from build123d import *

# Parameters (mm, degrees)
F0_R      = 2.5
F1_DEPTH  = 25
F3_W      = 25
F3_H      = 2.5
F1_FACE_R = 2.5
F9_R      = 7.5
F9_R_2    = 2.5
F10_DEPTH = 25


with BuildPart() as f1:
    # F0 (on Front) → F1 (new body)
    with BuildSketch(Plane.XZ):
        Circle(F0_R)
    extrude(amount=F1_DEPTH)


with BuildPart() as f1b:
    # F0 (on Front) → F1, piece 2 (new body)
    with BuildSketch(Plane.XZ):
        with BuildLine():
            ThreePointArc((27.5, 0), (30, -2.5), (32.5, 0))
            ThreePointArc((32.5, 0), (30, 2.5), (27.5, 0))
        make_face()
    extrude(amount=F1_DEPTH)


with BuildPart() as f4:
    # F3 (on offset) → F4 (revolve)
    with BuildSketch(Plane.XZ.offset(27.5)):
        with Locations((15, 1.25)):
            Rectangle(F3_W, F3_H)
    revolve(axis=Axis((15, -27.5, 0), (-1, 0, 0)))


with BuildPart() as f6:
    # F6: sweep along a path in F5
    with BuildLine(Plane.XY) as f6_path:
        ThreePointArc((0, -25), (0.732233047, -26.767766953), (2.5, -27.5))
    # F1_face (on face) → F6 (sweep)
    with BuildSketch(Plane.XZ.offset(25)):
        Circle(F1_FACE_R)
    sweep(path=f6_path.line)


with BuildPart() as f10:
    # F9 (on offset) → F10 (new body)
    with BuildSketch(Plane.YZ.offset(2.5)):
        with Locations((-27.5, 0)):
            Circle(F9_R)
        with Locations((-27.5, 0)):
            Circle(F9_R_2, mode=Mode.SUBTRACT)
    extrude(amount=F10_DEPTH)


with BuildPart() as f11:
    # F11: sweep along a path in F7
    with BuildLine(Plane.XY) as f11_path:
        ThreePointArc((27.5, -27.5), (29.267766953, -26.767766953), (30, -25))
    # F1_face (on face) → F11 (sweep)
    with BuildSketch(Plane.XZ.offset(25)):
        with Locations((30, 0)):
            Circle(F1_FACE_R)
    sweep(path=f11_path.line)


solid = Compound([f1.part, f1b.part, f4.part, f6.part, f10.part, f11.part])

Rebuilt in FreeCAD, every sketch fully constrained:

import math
import FreeCAD as App
import Part
import Sketcher

V = App.Vector


def add_polygon(sketch, points):
    """Adds a closed chain of lines whose ends are joined by coincident constraints."""
    first, n = sketch.GeometryCount, len(points)
    for a, b in zip(points, points[1:] + points[:1]):
        sketch.addGeometry(Part.LineSegment(App.Vector(*a, 0), App.Vector(*b, 0)), False)
    for i in range(n):
        sketch.addConstraint(Sketcher.Constraint("Coincident", first + i, 2, first + (i + 1) % n, 1))

doc = App.newDocument("Part")
body = doc.addObject("PartDesign::Body", "Body")

sketch1 = doc.addObject("Sketcher::SketchObject", "Sketch")
body.addObject(sketch1)
sketch1.AttachmentSupport = (doc.XZ_Plane, [""])
sketch1.MapMode = "FlatFace"
sketch1.addGeometry(Part.Circle(V(0, 0, 0), V(0, 0, 1), 2.5), False)
sketch1.addConstraint(Sketcher.Constraint("Coincident", 0, 3, -1, 1))
sketch1.addConstraint(Sketcher.Constraint("Diameter", 0, 5.0))
pad1 = doc.addObject("PartDesign::Pad", "Pad")
body.addObject(pad1)
pad1.Profile = sketch1
pad1.Length = 25
body2 = doc.addObject("PartDesign::Body", "Body001")

sketch2 = doc.addObject("Sketcher::SketchObject", "Sketch001")
body2.addObject(sketch2)
sketch2.AttachmentSupport = (doc.getObject("XZ_Plane001"), [""])
sketch2.MapMode = "FlatFace"
sketch2.addGeometry(Part.Circle(V(30, 0, 0), V(0, 0, 1), 2.5), False)
sketch2.addConstraint(Sketcher.Constraint("PointOnObject", 0, 3, -1))
sketch2.addConstraint(Sketcher.Constraint("Diameter", 0, 5.0))
sketch2.addConstraint(Sketcher.Constraint("DistanceX", -1, 1, 0, 3, 30.0))
pad2 = doc.addObject("PartDesign::Pad", "Pad001")
body2.addObject(pad2)
pad2.Profile = sketch2
pad2.Length = 25
body3 = doc.addObject("PartDesign::Body", "Body002")

sketch3 = doc.addObject("Sketcher::SketchObject", "Sketch002")
body3.addObject(sketch3)
sketch3.AttachmentSupport = (doc.getObject("XZ_Plane002"), [""])
sketch3.MapMode = "FlatFace"
sketch3.AttachmentOffset = App.Placement(V(0, 0, 27.5), App.Rotation())
add_polygon(sketch3, [(2.5, 2.5), (2.5, 0), (27.5, 0), (27.5, 2.5)])
sketch3.addConstraint(Sketcher.Constraint("Vertical", 0))
sketch3.addConstraint(Sketcher.Constraint("Horizontal", 1))
sketch3.addConstraint(Sketcher.Constraint("Vertical", 2))
sketch3.addConstraint(Sketcher.Constraint("Horizontal", 3))
sketch3.addConstraint(Sketcher.Constraint("PointOnObject", 0, 2, -1))
sketch3.addConstraint(Sketcher.Constraint("DistanceX", 1, 1, 1, 2, 25.0))
sketch3.addConstraint(Sketcher.Constraint("DistanceY", 0, 2, 0, 1, 2.5))
sketch3.addConstraint(Sketcher.Constraint("DistanceX", -1, 1, 0, 2, 2.5))
revolution = doc.addObject("PartDesign::Revolution", "Revolution")
body3.addObject(revolution)
revolution.Profile = sketch3
revolution.ReferenceAxis = (sketch3, ["H_Axis"])
revolution.Angle = 360
body4 = doc.addObject("PartDesign::Body", "Body003")

sketch4 = doc.addObject("Sketcher::SketchObject", "Sketch003")
body4.addObject(sketch4)
sketch4.AttachmentSupport = (doc.getObject("XZ_Plane003"), [""])
sketch4.MapMode = "FlatFace"
sketch4.AttachmentOffset = App.Placement(V(0, 0, 25), App.Rotation())
sketch4.addGeometry(Part.Circle(V(0, 0, 0), V(0, 0, 1), 2.5), False)
sketch4.addConstraint(Sketcher.Constraint("Coincident", 0, 3, -1, 1))
sketch4.addConstraint(Sketcher.Constraint("Diameter", 0, 5.0))

sketch5 = doc.addObject("Sketcher::SketchObject", "Sketch004")
body4.addObject(sketch5)
sketch5.AttachmentSupport = (doc.getObject("XY_Plane003"), [""])
sketch5.MapMode = "FlatFace"
sketch5.addGeometry(Part.ArcOfCircle(Part.Circle(V(2.5, -25, 0), V(0, 0, 1), 2.5), math.radians(180), math.radians(270)), False)
sketch5.addConstraint(Sketcher.Constraint("PointOnObject", 0, 1, -2))
sketch5.addConstraint(Sketcher.Constraint("Radius", 0, 2.5))
sketch5.addConstraint(Sketcher.Constraint("DistanceY", 0, 3, -1, 1, 25.0))
sketch5.addConstraint(Sketcher.Constraint("DistanceY", 0, 1, -1, 1, 25.0))
sketch5.addConstraint(Sketcher.Constraint("DistanceX", -1, 1, 0, 2, 2.5))
doc.recompute()

additivepipe = doc.addObject("PartDesign::AdditivePipe", "AdditivePipe")
body4.addObject(additivepipe)
additivepipe.Profile = sketch4
additivepipe.Spine = (sketch5, ["Edge1"])
body5 = doc.addObject("PartDesign::Body", "Body004")

sketch6 = doc.addObject("Sketcher::SketchObject", "Sketch005")
body5.addObject(sketch6)
sketch6.AttachmentSupport = (doc.getObject("YZ_Plane004"), [""])
sketch6.MapMode = "FlatFace"
sketch6.AttachmentOffset = App.Placement(V(0, 0, 2.5), App.Rotation())
sketch6.addGeometry(Part.Circle(V(-27.5, 0, 0), V(0, 0, 1), 7.5), False)
sketch6.addGeometry(Part.Circle(V(-27.5, 0, 0), V(0, 0, 1), 2.5), False)
sketch6.addConstraint(Sketcher.Constraint("Coincident", 1, 3, 0, 3))
sketch6.addConstraint(Sketcher.Constraint("PointOnObject", 0, 3, -1))
sketch6.addConstraint(Sketcher.Constraint("Diameter", 0, 15.0))
sketch6.addConstraint(Sketcher.Constraint("Diameter", 1, 5.0))
sketch6.addConstraint(Sketcher.Constraint("DistanceX", 0, 3, -1, 1, 27.5))
pad3 = doc.addObject("PartDesign::Pad", "Pad002")
body5.addObject(pad3)
pad3.Profile = sketch6
pad3.Length = 25
body6 = doc.addObject("PartDesign::Body", "Body005")

sketch7 = doc.addObject("Sketcher::SketchObject", "Sketch006")
body6.addObject(sketch7)
sketch7.AttachmentSupport = (doc.getObject("XZ_Plane005"), [""])
sketch7.MapMode = "FlatFace"
sketch7.AttachmentOffset = App.Placement(V(0, 0, 25), App.Rotation())
sketch7.addGeometry(Part.Circle(V(30, 0, 0), V(0, 0, 1), 2.5), False)
sketch7.addConstraint(Sketcher.Constraint("PointOnObject", 0, 3, -1))
sketch7.addConstraint(Sketcher.Constraint("Diameter", 0, 5.0))
sketch7.addConstraint(Sketcher.Constraint("DistanceX", -1, 1, 0, 3, 30.0))

sketch8 = doc.addObject("Sketcher::SketchObject", "Sketch007")
body6.addObject(sketch8)
sketch8.AttachmentSupport = (doc.getObject("XY_Plane005"), [""])
sketch8.MapMode = "FlatFace"
sketch8.addGeometry(Part.ArcOfCircle(Part.Circle(V(27.5, -25, 0), V(0, 0, 1), 2.5), math.radians(-90), math.radians(0)), False)
sketch8.addConstraint(Sketcher.Constraint("Radius", 0, 2.5))
sketch8.addConstraint(Sketcher.Constraint("DistanceY", 0, 3, -1, 1, 25.0))
sketch8.addConstraint(Sketcher.Constraint("DistanceX", -1, 1, 0, 2, 30.0))
sketch8.addConstraint(Sketcher.Constraint("DistanceY", 0, 2, -1, 1, 25.0))
sketch8.addConstraint(Sketcher.Constraint("DistanceX", -1, 1, 0, 1, 27.5))
doc.recompute()

additivepipe2 = doc.addObject("PartDesign::AdditivePipe", "AdditivePipe001")
body6.addObject(additivepipe2)
additivepipe2.Profile = sketch7
additivepipe2.Spine = (sketch8, ["Edge1"])

doc.recompute()
